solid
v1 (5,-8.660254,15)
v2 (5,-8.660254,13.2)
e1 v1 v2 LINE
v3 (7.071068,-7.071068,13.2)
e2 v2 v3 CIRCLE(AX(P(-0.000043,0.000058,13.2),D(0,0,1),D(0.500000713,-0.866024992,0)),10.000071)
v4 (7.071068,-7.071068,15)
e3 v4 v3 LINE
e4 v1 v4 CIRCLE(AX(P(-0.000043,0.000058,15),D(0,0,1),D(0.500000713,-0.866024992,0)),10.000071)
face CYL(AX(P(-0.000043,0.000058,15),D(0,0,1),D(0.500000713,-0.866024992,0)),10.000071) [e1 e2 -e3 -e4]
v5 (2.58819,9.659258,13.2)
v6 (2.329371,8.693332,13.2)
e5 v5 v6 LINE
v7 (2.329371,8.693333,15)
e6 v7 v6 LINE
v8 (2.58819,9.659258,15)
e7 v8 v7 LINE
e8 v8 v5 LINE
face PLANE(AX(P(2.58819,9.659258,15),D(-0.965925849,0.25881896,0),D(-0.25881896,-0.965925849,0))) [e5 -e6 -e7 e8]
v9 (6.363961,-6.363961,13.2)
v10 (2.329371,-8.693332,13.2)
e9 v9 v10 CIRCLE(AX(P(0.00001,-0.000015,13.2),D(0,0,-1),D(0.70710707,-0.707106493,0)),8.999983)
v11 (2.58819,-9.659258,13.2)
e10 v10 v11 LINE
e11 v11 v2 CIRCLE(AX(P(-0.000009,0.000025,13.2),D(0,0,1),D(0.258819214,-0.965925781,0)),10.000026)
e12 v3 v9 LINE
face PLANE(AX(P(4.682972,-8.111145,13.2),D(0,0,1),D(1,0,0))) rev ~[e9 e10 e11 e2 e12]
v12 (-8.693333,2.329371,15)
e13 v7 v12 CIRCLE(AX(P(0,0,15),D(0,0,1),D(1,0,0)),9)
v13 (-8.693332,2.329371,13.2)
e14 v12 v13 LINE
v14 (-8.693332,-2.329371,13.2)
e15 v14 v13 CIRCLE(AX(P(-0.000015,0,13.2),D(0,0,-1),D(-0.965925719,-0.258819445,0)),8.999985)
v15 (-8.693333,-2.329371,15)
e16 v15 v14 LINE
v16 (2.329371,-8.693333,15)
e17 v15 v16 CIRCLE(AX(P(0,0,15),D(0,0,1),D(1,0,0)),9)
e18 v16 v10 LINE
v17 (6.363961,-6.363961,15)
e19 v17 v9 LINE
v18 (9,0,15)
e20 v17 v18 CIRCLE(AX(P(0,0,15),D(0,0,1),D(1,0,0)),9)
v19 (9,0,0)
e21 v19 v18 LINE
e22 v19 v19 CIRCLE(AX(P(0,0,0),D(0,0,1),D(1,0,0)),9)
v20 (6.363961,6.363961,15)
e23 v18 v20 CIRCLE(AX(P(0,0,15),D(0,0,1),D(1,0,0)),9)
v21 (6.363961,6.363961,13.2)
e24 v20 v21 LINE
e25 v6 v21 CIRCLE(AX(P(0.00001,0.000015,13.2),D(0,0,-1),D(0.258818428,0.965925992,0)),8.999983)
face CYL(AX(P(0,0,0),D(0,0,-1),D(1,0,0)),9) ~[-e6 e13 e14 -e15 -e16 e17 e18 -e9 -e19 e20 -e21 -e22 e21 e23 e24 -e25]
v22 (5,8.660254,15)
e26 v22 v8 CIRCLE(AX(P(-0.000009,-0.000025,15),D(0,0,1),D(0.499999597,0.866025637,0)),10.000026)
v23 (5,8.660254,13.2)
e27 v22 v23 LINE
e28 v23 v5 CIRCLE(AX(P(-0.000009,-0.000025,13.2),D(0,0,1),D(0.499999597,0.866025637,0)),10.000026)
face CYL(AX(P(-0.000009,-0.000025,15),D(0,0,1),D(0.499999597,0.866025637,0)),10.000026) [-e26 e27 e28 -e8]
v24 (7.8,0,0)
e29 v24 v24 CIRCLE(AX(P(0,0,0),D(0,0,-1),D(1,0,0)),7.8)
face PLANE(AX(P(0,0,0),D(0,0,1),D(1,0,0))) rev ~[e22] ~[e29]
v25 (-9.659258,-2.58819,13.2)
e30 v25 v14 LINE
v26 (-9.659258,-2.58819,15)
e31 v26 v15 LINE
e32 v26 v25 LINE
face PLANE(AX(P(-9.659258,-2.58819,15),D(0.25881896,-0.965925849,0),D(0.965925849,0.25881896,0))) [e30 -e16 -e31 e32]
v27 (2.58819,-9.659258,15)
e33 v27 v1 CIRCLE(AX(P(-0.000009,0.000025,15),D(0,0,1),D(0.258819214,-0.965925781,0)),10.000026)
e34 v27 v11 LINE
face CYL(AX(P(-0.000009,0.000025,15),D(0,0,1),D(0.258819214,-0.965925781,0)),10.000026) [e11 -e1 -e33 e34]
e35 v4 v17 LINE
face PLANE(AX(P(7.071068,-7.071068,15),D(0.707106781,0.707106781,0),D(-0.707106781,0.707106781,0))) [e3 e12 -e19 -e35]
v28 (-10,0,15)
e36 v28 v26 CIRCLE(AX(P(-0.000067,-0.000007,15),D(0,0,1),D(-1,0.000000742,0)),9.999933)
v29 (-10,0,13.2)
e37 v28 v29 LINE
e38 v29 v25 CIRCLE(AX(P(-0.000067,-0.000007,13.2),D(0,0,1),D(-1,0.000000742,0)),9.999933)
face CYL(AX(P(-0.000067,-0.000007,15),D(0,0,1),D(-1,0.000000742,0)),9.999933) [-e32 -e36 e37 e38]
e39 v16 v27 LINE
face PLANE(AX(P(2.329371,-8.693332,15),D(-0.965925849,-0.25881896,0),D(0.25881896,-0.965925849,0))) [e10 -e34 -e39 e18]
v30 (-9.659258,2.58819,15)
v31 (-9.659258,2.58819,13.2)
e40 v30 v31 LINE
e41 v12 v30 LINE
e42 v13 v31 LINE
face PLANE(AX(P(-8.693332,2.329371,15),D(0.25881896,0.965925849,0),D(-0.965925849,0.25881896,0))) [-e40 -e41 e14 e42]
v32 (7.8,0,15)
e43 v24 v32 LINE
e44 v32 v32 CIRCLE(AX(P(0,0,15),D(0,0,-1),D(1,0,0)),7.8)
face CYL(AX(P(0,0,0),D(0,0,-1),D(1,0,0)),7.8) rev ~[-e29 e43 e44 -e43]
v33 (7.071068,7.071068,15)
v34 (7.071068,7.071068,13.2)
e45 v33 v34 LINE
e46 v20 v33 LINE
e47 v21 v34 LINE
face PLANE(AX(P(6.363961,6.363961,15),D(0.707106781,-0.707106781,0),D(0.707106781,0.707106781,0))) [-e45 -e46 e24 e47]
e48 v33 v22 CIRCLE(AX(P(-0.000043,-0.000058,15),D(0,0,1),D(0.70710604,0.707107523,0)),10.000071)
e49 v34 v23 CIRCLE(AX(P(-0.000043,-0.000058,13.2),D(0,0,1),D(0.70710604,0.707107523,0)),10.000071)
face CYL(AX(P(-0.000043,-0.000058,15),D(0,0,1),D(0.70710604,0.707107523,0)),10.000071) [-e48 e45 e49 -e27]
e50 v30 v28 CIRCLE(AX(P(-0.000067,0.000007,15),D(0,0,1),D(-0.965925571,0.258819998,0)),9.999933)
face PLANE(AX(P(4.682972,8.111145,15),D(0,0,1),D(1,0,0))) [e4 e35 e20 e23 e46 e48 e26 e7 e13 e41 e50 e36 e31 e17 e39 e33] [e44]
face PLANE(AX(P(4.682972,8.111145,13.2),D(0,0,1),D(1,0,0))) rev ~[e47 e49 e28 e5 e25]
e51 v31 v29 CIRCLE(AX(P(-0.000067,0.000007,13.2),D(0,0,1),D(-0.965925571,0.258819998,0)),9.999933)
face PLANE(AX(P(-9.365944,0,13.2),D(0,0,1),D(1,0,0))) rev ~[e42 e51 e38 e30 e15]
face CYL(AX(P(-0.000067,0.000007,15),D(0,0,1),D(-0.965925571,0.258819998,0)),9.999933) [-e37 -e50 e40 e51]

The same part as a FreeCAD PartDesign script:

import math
import FreeCAD as App
import Part
import Sketcher
from FreeCAD import Vector
Q = App.Units.Quantity

doc = App.newDocument("Part")
params = doc.addObject("Spreadsheet::Sheet", "Params")
for row, (alias, value) in enumerate([
    ("sketch1_diameter", "18 mm"),
    ("pad1_length", "15 mm"),
    ("sketch2_length", "1 mm"),
    ("pad2_length", "1.8 mm"),
    ("sketch3_diameter", "15.6 mm"),
    ("pocket1_length", "25 mm"),
], start=1):
    params.set(f"A{row}", alias)
    params.set(f"B{row}", "=" + value)
    params.setAlias(f"B{row}", alias)

body = doc.addObject("PartDesign::Body", "Body")

# Sketch on XY plane
sketch1 = body.newObject("Sketcher::SketchObject", "Sketch")
sketch1.AttachmentSupport = (doc.getObject("XY_Plane"), [""])
sketch1.MapMode = "FlatFace"
sketch1.addGeometry(Part.Circle(Vector(0, 0, 0), Vector(0, 0, 1), 9), False)
sketch1.addConstraint(Sketcher.Constraint("Coincident", 0, 3, -1, 1))
sketch1.addConstraint(Sketcher.Constraint("Diameter", 0, 18.0))
sketch1.setExpression("Constraints[1]", "Params.sketch1_diameter")
pad1 = body.newObject("PartDesign::Pad", "Pad")
pad1.Profile = sketch1
pad1.setExpression("Length", "Params.pad1_length")

# Sketch on XY plane
sketch2 = body.newObject("Sketcher::SketchObject", "Sketch001")
sketch2.AttachmentSupport = (doc.getObject("XY_Plane"), [""])
sketch2.MapMode = "FlatFace"
sketch2.AttachmentOffset = App.Placement(Vector(0, 0, 15), App.Rotation())
sketch2.addGeometry(Part.LineSegment(Vector(6.363961, 6.363961, 0), Vector(7.071068, 7.071068, 0)), False)
sketch2.addGeometry(Part.ArcOfCircle(Part.Circle(Vector(-0.000043, -0.000058, 0), Vector(0, 0, 1), 10.000071), math.radians(45.00006), math.radians(59.999953)), False)
sketch2.addGeometry(Part.ArcOfCircle(Part.Circle(Vector(-0.000009, -0.000025, 0), Vector(0, 0, 1), 10.000026), math.radians(60.000027), math.radians(74.99999)), False)
sketch2.addGeometry(Part.LineSegment(Vector(2.58819, 9.659258, 0), Vector(2.329371, 8.693332, 0)), False)
sketch2.addGeometry(Part.ArcOfCircle(Part.Circle(Vector(0.00001, 0.000015, 0), Vector(0, 0, 1), 8.999983), math.radians(44.999977), math.radians(75.000037)), False)
sketch2.addGeometry(Part.ArcOfCircle(Part.Circle(Vector(-0.000043, 0.000058, 0), Vector(0, 0, 1), 10.000071), math.radians(-59.999953), math.radians(-45.00006)), False)
sketch2.addGeometry(Part.LineSegment(Vector(7.071068, -7.071068, 0), Vector(6.363961, -6.363961, 0)), False)
sketch2.addGeometry(Part.ArcOfCircle(Part.Circle(Vector(0.00001, -0.000015, 0), Vector(0, 0, 1), 8.999983), math.radians(-75.000037), math.radians(-44.999977)), False)
sketch2.addGeometry(Part.LineSegment(Vector(2.329371, -8.693332, 0), Vector(2.58819, -9.659258, 0)), False)
sketch2.addGeometry(Part.ArcOfCircle(Part.Circle(Vector(-0.000009, 0.000025, 0), Vector(0, 0, 1), 10.000026), math.radians(-74.99999), math.radians(-60.000027)), False)
sketch2.addGeometry(Part.LineSegment(Vector(-8.693332, 2.329371, 0), Vector(-9.659258, 2.58819, 0)), False)
sketch2.addGeometry(Part.ArcOfCircle(Part.Circle(Vector(-0.000067, 0.000007, 0), Vector(0, 0, 1), 9.999933), math.radians(164.999943), math.radians(180.000043)), False)
sketch2.addGeometry(Part.ArcOfCircle(Part.Circle(Vector(-0.000067, -0.000007, 0), Vector(0, 0, 1), 9.999933), math.radians(179.999957), math.radians(195.000057)), False)
sketch2.addGeometry(Part.LineSegment(Vector(-9.659258, -2.58819, 0), Vector(-8.693332, -2.329371, 0)), False)
sketch2.addGeometry(Part.ArcOfCircle(Part.Circle(Vector(-0.000015, 0, 0), Vector(0, 0, 1), 8.999985), math.radians(164.999976), math.radians(195.000024)), False)
sketch2.addConstraint(Sketcher.Constraint("Coincident", 0, 2, 1, 1))
sketch2.addConstraint(Sketcher.Constraint("Tangent", 1, 2, 2, 1))
sketch2.addConstraint(Sketcher.Constraint("Coincident", 2, 2, 3, 1))
sketch2.addConstraint(Sketcher.Constraint("Coincident", 3, 2, 4, 2))
sketch2.addConstraint(Sketcher.Constraint("Coincident", 4, 1, 0, 1))
sketch2.addConstraint(Sketcher.Constraint("Coincident", 5, 2, 6, 1))
sketch2.addConstraint(Sketcher.Constraint("Coincident", 6, 2, 7, 2))
sketch2.addConstraint(Sketcher.Constraint("Coincident", 7, 1, 8, 1))
sketch2.addConstraint(Sketcher.Constraint("Coincident", 8, 2, 9, 1))
sketch2.addConstraint(Sketcher.Constraint("Tangent", 9, 2, 5, 1))
sketch2.addConstraint(Sketcher.Constraint("Coincident", 10, 2, 11, 1))
sketch2.addConstraint(Sketcher.Constraint("Tangent", 11, 2, 12, 1))
sketch2.addConstraint(Sketcher.Constraint("Coincident", 12, 2, 13, 1))
sketch2.addConstraint(Sketcher.Constraint("Coincident", 13, 2, 14, 2))
sketch2.addConstraint(Sketcher.Constraint("Coincident", 14, 1, 10, 1))
sketch2.addConstraint(Sketcher.Constraint("Equal", 1, 5))
sketch2.addConstraint(Sketcher.Constraint("Equal", 4, 7))
sketch2.addConstraint(Sketcher.Constraint("Equal", 2, 9))
sketch2.addConstraint(Sketcher.Constraint("Equal", 11, 12))
sketch2.addConstraint(Sketcher.Constraint("Equal", 7, 14))
sketch2.addConstraint(Sketcher.Constraint("Symmetric", 2, 3, 4, 3, -1, 1))
sketch2.addConstraint(Sketcher.Constraint("Symmetric", 7, 3, 9, 3, -1, 1))
sketch2.addConstraint(Sketcher.Constraint("Symmetric", 2, 3, 7, 3, -2))
sketch2.addConstraint(Sketcher.Constraint("Symmetric", 10, 2, 12, 2, -1))
sketch2.addConstraint(Sketcher.Constraint("Symmetric", 13, 2, 14, 1, -1))
sketch2.addConstraint(Sketcher.Constraint("PointOnObject", 11, 2, -1))
sketch2.addConstraint(Sketcher.Constraint("Perpendicular", 0, 6))
sketch2.addConstraint(Sketcher.Constraint("Perpendicular", 3, 10))
sketch2.addConstraint(Sketcher.Constraint("Perpendicular", 8, 13))
sketch2.addConstraint(Sketcher.Constraint("Vertical", 0, 2, 5, 2))
sketch2.addConstraint(Sketcher.Constraint("Vertical", 4, 1, 6, 2))
sketch2.addConstraint(Sketcher.Constraint("Vertical", 3, 2, 7, 1))
sketch2.addConstraint(Sketcher.Constraint("Vertical", 1, 2, 9, 2))
sketch2.addConstraint(Sketcher.Constraint("Equal", 0, 3))
sketch2.addConstraint(Sketcher.Constraint("Equal", 8, 10))
sketch2.addConstraint(Sketcher.Constraint("Angle", 3, Q("-104.999995 deg")))
sketch2.addConstraint(Sketcher.Constraint("Distance", 0, 1.0))
sketch2.addConstraint(Sketcher.Constraint("DistanceX", -1, 1, 1, 2, 5.0))
sketch2.addConstraint(Sketcher.Constraint("DistanceX", 11, 2, -1, 1, 10.0))
sketch2.addConstraint(Sketcher.Constraint("Radius", 1, 10.000071))
sketch2.addConstraint(Sketcher.Constraint("Radius", 2, 10.000026))
sketch2.addConstraint(Sketcher.Constraint("Radius", 4, 8.999983))
sketch2.addConstraint(Sketcher.Constraint("Radius", 11, 9.999933))
sketch2.addConstraint(Sketcher.Constraint("DistanceY", 5, 3, 2, 2, 9.6592))
sketch2.addConstraint(Sketcher.Constraint("DistanceX", -1, 1, 0, 2, 7.071068))
sketch2.addConstraint(Sketcher.Constraint("DistanceY", -1, 1, 10, 2, 2.58819))
sketch2.setExpression("Constraints[36]", "Params.sketch2_length")
pad2 = body.newObject("PartDesign::Pad", "Pad001")
pad2.Profile = sketch2
pad2.setExpression("Length", "Params.pad2_length")
pad2.Reversed = True

# Sketch on XY plane
sketch3 = body.newObject("Sketcher::SketchObject", "Sketch002")
sketch3.AttachmentSupport = (doc.getObject("XY_Plane"), [""])
sketch3.MapMode = "FlatFace"
sketch3.addGeometry(Part.Circle(Vector(0, 0, 0), Vector(0, 0, 1), 8), False)
sketch3.addConstraint(Sketcher.Constraint("Coincident", 0, 3, -1, 1))
sketch3.addConstraint(Sketcher.Constraint("Diameter", 0, 15.6))
sketch3.setExpression("Constraints[1]", "Params.sketch3_diameter")
pocket1 = body.newObject("PartDesign::Pocket", "Pocket")
pocket1.Profile = sketch3
pocket1.setExpression("Length", "Params.pocket1_length")
pocket1.Reversed = True

doc.recompute()
